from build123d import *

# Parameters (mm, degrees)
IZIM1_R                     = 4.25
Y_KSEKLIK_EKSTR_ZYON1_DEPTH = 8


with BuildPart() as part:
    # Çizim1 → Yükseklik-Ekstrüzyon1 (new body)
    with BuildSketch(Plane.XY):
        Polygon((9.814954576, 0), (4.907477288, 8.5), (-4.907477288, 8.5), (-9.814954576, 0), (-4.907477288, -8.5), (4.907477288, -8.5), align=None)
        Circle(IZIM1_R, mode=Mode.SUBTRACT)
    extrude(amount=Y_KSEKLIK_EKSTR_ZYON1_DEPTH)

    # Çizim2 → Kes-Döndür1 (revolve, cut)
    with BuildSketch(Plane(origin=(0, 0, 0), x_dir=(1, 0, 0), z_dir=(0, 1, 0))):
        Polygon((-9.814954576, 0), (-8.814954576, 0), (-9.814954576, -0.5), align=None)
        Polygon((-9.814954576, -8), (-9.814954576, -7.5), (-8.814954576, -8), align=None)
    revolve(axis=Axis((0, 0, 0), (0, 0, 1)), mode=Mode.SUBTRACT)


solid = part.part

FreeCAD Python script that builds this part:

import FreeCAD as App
import Part
import Sketcher
from FreeCAD import Vector
Q = App.Units.Quantity

doc = App.newDocument("Part")
body = doc.addObject("PartDesign::Body", "Body")

sketch1 = body.newObject("Sketcher::SketchObject", "Sketch")
sketch1.AttachmentSupport = (doc.getObject("XY_Plane"), [""])
sketch1.MapMode = "FlatFace"
sketch1.addGeometry(Part.LineSegment(Vector(9.8, 0, 0), Vector(4.9, 8.5, 0)), False)
sketch1.addGeometry(Part.LineSegment(Vector(4.9, 8.5, 0), Vector(-4.9, 8.5, 0)), False)
sketch1.addGeometry(Part.LineSegment(Vector(-4.9, 8.5, 0), Vector(-9.8, 0, 0)), False)
sketch1.addGeometry(Part.LineSegment(Vector(-9.8, 0, 0), Vector(-4.9, -8.5, 0)), False)
sketch1.addGeometry(Part.LineSegment(Vector(-4.9, -8.5, 0), Vector(4.9, -8.5, 0)), False)
sketch1.addGeometry(Part.LineSegment(Vector(4.9, -8.5, 0), Vector(9.8, 0, 0)), False)
sketch1.addGeometry(Part.Circle(Vector(0, 0, 0), Vector(0, 0, 1), 4.2), False)
sketch1.addConstraint(Sketcher.Constraint("Coincident", 0, 2, 1, 1))
sketch1.addConstraint(Sketcher.Constraint("Coincident", 1, 2, 2, 1))
sketch1.addConstraint(Sketcher.Constraint("Coincident", 2, 2, 3, 1))
sketch1.addConstraint(Sketcher.Constraint("Coincident", 3, 2, 4, 1))
sketch1.addConstraint(Sketcher.Constraint("Coincident", 4, 2, 5, 1))
sketch1.addConstraint(Sketcher.Constraint("Coincident", 5, 2, 0, 1))
sketch1.addConstraint(Sketcher.Constraint("Horizontal", 1))
sketch1.addConstraint(Sketcher.Constraint("Horizontal", 4))
sketch1.addConstraint(Sketcher.Constraint("Coincident", 6, 3, -1, 1))
sketch1.addConstraint(Sketcher.Constraint("Symmetric", 0, 2, 3, 2, -1, 1))
sketch1.addConstraint(Sketcher.Constraint("Symmetric", 2, 2, 5, 2, -1, 1))
sketch1.addConstraint(Sketcher.Constraint("PointOnObject", 2, 2, -1))
sketch1.addConstraint(Sketcher.Constraint("Parallel", 2, 5))
sketch1.addConstraint(Sketcher.Constraint("Vertical", 1, 2, 3, 2))
sketch1.addConstraint(Sketcher.Constraint("Diameter", 6, Q("8.5 mm")))
sketch1.addConstraint(Sketcher.Constraint("Angle", 0, Q("120 deg")))
sketch1.addConstraint(Sketcher.Constraint("DistanceY", 3, 2, 1, 2, Q("17 mm")))
sketch1.addConstraint(Sketcher.Constraint("DistanceX", 1, 2, 1, 1, Q("9.814955 mm")))
pad1 = body.newObject("PartDesign::Pad", "Pad")
pad1.Profile = sketch1
pad1.Length = 8

sketch2 = body.newObject("Sketcher::SketchObject", "Sketch001")
sketch2.AttachmentSupport = (doc.getObject("XZ_Plane"), [""])
sketch2.MapMode = "FlatFace"
sketch2.addGeometry(Part.LineSegment(Vector(-8.8, 0, 0), Vector(-9.8, 0, 0)), False)
sketch2.addGeometry(Part.LineSegment(Vector(-9.8, 0, 0), Vector(-9.8, 0.5, 0)), False)
sketch2.addGeometry(Part.LineSegment(Vector(-9.8, 0.5, 0), Vector(-8.8, 0, 0)), False)
sketch2.addGeometry(Part.LineSegment(Vector(-9.8, 7.5, 0), Vector(-9.8, 8, 0)), False)
sketch2.addGeometry(Part.LineSegment(Vector(-9.8, 8, 0), Vector(-8.8, 8, 0)), False)
sketch2.addGeometry(Part.LineSegment(Vector(-8.8, 8, 0), Vector(-9.8, 7.5, 0)), False)
sketch2.addConstraint(Sketcher.Constraint("Coincident", 0, 2, 1, 1))
sketch2.addConstraint(Sketcher.Constraint("Coincident", 1, 2, 2, 1))
sketch2.addConstraint(Sketcher.Constraint("Coincident", 2, 2, 0, 1))
sketch2.addConstraint(Sketcher.Constraint("Coincident", 3, 2, 4, 1))
sketch2.addConstraint(Sketcher.Constraint("Coincident", 4, 2, 5, 1))
sketch2.addConstraint(Sketcher.Constraint("Coincident", 5, 2, 3, 1))
sketch2.addConstraint(Sketcher.Constraint("Horizontal", 0))
sketch2.addConstraint(Sketcher.Constraint("Vertical", 1))
sketch2.addConstraint(Sketcher.Constraint("Vertical", 3))
sketch2.addConstraint(Sketcher.Constraint("Horizontal", 4))
sketch2.addConstraint(Sketcher.Constraint("PointOnObject", 0, 2, -1))
sketch2.addConstraint(Sketcher.Constraint("Vertical", 1, 2, 3, 2))
sketch2.addConstraint(Sketcher.Constraint("Vertical", 2, 2, 4, 2))
sketch2.addConstraint(Sketcher.Constraint("Equal", 1, 3))
sketch2.addConstraint(Sketcher.Constraint("DistanceX", 0, 2, 0, 1, Q("1 mm")))
sketch2.addConstraint(Sketcher.Constraint("DistanceY", 1, 1, 1, 2, Q("0.5 mm")))
sketch2.addConstraint(Sketcher.Constraint("DistanceY", -1, 1, 3, 2, Q("8 mm")))
sketch2.addConstraint(Sketcher.Constraint("DistanceX", 0, 2, -1, 1, Q("9.814955 mm")))
groove = body.newObject("PartDesign::Groove", "Groove")
groove.Profile = sketch2
groove.ReferenceAxis = (sketch2, ["V_Axis"])
groove.Angle = 360

doc.recompute()
